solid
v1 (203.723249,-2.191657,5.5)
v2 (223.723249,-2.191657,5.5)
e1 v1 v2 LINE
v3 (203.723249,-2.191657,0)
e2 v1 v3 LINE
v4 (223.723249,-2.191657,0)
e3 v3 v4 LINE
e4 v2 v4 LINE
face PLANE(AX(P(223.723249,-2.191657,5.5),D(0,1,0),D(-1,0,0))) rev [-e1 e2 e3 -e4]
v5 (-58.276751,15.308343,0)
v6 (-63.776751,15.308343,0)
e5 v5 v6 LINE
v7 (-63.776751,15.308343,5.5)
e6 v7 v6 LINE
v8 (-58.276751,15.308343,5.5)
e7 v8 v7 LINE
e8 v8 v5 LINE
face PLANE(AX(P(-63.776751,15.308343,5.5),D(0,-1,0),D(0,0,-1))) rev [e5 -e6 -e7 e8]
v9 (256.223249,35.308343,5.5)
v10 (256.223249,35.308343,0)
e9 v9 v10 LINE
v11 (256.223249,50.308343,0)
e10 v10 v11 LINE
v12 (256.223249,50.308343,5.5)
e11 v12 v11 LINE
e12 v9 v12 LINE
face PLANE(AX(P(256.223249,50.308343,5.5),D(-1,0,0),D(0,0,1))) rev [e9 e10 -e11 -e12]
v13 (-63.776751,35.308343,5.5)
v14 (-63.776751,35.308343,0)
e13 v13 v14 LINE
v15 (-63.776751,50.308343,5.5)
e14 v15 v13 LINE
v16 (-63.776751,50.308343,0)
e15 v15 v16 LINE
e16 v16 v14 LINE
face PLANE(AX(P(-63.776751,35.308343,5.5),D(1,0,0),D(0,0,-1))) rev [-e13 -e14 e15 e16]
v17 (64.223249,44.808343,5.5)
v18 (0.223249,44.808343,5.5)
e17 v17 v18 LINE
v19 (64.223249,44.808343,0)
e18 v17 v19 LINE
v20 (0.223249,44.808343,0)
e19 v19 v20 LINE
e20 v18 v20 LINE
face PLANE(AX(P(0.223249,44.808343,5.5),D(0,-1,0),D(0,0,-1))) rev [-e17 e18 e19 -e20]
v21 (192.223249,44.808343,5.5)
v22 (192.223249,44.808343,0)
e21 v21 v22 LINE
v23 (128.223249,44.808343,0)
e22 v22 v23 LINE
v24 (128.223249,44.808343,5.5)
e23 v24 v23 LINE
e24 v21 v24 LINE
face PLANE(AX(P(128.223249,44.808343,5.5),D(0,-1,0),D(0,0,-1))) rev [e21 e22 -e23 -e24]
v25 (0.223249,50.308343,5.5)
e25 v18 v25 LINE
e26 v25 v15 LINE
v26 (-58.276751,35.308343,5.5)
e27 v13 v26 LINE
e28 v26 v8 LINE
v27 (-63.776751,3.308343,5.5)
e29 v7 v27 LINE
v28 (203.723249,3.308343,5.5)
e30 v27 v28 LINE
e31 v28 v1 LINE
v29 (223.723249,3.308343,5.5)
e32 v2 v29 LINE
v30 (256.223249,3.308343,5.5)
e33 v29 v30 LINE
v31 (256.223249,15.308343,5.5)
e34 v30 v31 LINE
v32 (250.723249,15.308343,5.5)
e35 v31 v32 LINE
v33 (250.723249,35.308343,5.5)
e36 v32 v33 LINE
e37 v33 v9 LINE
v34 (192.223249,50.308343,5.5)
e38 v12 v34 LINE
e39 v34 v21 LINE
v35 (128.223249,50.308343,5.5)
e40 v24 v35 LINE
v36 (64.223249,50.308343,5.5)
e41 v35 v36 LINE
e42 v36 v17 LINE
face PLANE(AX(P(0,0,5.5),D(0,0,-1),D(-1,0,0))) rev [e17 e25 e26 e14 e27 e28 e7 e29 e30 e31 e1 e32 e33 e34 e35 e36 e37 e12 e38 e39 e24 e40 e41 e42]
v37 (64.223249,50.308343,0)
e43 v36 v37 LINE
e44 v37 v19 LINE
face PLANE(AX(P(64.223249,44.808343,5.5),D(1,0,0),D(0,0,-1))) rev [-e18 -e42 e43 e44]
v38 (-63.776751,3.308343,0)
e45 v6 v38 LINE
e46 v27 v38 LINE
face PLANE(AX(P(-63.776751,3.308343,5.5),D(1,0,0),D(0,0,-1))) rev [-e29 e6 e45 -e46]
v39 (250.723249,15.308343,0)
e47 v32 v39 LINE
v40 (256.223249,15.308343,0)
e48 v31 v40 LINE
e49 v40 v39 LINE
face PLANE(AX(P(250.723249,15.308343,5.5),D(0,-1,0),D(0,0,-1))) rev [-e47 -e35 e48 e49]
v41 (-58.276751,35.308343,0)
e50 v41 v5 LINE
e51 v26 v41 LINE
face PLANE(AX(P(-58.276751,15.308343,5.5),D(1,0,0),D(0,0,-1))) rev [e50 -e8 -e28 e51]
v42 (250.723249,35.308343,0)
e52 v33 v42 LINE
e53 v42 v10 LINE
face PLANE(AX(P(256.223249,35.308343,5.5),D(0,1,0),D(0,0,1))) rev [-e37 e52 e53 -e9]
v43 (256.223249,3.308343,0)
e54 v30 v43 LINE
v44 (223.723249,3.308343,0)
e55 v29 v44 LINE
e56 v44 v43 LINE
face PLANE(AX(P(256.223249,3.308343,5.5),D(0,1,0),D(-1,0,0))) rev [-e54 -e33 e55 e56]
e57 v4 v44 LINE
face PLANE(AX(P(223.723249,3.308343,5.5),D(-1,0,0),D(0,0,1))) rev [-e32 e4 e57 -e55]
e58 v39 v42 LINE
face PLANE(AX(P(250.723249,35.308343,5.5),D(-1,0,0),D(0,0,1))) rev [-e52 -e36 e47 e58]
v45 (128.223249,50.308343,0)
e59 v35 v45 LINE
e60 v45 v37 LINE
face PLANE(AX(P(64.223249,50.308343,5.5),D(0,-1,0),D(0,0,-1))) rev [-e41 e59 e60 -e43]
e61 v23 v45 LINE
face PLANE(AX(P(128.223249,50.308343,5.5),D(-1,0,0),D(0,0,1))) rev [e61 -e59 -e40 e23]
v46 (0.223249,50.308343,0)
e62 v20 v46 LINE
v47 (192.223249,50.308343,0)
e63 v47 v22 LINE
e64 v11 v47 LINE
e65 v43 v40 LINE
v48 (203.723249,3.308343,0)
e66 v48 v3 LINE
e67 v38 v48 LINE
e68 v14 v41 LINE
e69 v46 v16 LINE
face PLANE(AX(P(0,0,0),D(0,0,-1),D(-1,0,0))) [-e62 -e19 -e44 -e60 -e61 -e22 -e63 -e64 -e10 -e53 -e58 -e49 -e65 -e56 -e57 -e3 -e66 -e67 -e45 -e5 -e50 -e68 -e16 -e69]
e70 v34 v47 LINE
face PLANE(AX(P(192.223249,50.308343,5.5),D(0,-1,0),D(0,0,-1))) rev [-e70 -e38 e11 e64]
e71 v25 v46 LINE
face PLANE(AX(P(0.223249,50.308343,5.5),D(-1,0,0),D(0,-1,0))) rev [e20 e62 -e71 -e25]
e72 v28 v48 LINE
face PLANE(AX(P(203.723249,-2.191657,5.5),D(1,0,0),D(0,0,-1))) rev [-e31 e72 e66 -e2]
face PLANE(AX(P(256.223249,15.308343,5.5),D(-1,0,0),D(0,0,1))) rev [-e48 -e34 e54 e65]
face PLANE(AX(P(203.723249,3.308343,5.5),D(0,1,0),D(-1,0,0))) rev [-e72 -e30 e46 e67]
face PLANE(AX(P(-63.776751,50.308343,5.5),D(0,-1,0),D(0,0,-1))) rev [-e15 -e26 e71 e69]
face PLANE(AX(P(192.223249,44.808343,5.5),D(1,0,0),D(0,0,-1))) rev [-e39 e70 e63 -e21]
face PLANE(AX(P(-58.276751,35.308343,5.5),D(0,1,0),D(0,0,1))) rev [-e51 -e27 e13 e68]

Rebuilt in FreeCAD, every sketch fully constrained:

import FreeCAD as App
import Part
import Sketcher
from FreeCAD import Vector
Q = App.Units.Quantity

doc = App.newDocument("Part")
body = doc.addObject("PartDesign::Body", "Body")

sketch1 = doc.addObject("Sketcher::SketchObject", "Sketch")
body.addObject(sketch1)
sketch1.AttachmentSupport = (doc.XY_Plane, [""])
sketch1.MapMode = "FlatFace"
sketch1.addGeometry(Part.LineSegment(Vector(-64, 15, 0), Vector(-64, 3, 0)), False)
sketch1.addGeometry(Part.LineSegment(Vector(-64, 3, 0), Vector(204, 3, 0)), False)
sketch1.addGeometry(Part.LineSegment(Vector(204, 3, 0), Vector(204, -2, 0)), False)
sketch1.addGeometry(Part.LineSegment(Vector(204, -2, 0), Vector(224, -2, 0)), False)
sketch1.addGeometry(Part.LineSegment(Vector(224, -2, 0), Vector(224, 3, 0)), False)
sketch1.addGeometry(Part.LineSegment(Vector(224, 3, 0), Vector(256, 3, 0)), False)
sketch1.addGeometry(Part.LineSegment(Vector(256, 3, 0), Vector(256, 15, 0)), False)
sketch1.addGeometry(Part.LineSegment(Vector(256, 15, 0), Vector(251, 15, 0)), False)
sketch1.addGeometry(Part.LineSegment(Vector(251, 15, 0), Vector(251, 35, 0)), False)
sketch1.addGeometry(Part.LineSegment(Vector(251, 35, 0), Vector(256, 35, 0)), False)
sketch1.addGeometry(Part.LineSegment(Vector(256, 35, 0), Vector(256, 50, 0)), False)
sketch1.addGeometry(Part.LineSegment(Vector(256, 50, 0), Vector(192, 50, 0)), False)
sketch1.addGeometry(Part.LineSegment(Vector(192, 50, 0), Vector(192, 45, 0)), False)
sketch1.addGeometry(Part.LineSegment(Vector(192, 45, 0), Vector(128, 45, 0)), False)
sketch1.addGeometry(Part.LineSegment(Vector(128, 45, 0), Vector(128, 50, 0)), False)
sketch1.addGeometry(Part.LineSegment(Vector(128, 50, 0), Vector(64, 50, 0)), False)
sketch1.addGeometry(Part.LineSegment(Vector(64, 50, 0), Vector(64, 45, 0)), False)
sketch1.addGeometry(Part.LineSegment(Vector(64, 45, 0), Vector(0, 45, 0)), False)
sketch1.addGeometry(Part.LineSegment(Vector(0, 45, 0), Vector(0, 50, 0)), False)
sketch1.addGeometry(Part.LineSegment(Vector(0, 50, 0), Vector(-64, 50, 0)), False)
sketch1.addGeometry(Part.LineSegment(Vector(-64, 50, 0), Vector(-64, 35, 0)), False)
sketch1.addGeometry(Part.LineSegment(Vector(-64, 35, 0), Vector(-58, 35, 0)), False)
sketch1.addGeometry(Part.LineSegment(Vector(-58, 35, 0), Vector(-58, 15, 0)), False)
sketch1.addGeometry(Part.LineSegment(Vector(-58, 15, 0), Vector(-64, 15, 0)), False)
sketch1.addConstraint(Sketcher.Constraint("Coincident", 0, 2, 1, 1))
sketch1.addConstraint(Sketcher.Constraint("Coincident", 1, 2, 2, 1))
sketch1.addConstraint(Sketcher.Constraint("Coincident", 2, 2, 3, 1))
sketch1.addConstraint(Sketcher.Constraint("Coincident", 3, 2, 4, 1))
sketch1.addConstraint(Sketcher.Constraint("Coincident", 4, 2, 5, 1))
sketch1.addConstraint(Sketcher.Constraint("Coincident", 5, 2, 6, 1))
sketch1.addConstraint(Sketcher.Constraint("Coincident", 6, 2, 7, 1))
sketch1.addConstraint(Sketcher.Constraint("Coincident", 7, 2, 8, 1))
sketch1.addConstraint(Sketcher.Constraint("Coincident", 8, 2, 9, 1))
sketch1.addConstraint(Sketcher.Constraint("Coincident", 9, 2, 10, 1))
sketch1.addConstraint(Sketcher.Constraint("Coincident", 10, 2, 11, 1))
sketch1.addConstraint(Sketcher.Constraint("Coincident", 11, 2, 12, 1))
sketch1.addConstraint(Sketcher.Constraint("Coincident", 12, 2, 13, 1))
sketch1.addConstraint(Sketcher.Constraint("Coincident", 13, 2, 14, 1))
sketch1.addConstraint(Sketcher.Constraint("Coincident", 14, 2, 15, 1))
sketch1.addConstraint(Sketcher.Constraint("Coincident", 15, 2, 16, 1))
sketch1.addConstraint(Sketcher.Constraint("Coincident", 16, 2, 17, 1))
sketch1.addConstraint(Sketcher.Constraint("Coincident", 17, 2, 18, 1))
sketch1.addConstraint(Sketcher.Constraint("Coincident", 18, 2, 19, 1))
sketch1.addConstraint(Sketcher.Constraint("Coincident", 19, 2, 20, 1))
sketch1.addConstraint(Sketcher.Constraint("Coincident", 20, 2, 21, 1))
sketch1.addConstraint(Sketcher.Constraint("Coincident", 21, 2, 22, 1))
sketch1.addConstraint(Sketcher.Constraint("Coincident", 22, 2, 23, 1))
sketch1.addConstraint(Sketcher.Constraint("Coincident", 23, 2, 0, 1))
sketch1.addConstraint(Sketcher.Constraint("Vertical", 0))
sketch1.addConstraint(Sketcher.Constraint("Horizontal", 1))
sketch1.addConstraint(Sketcher.Constraint("Vertical", 2))
sketch1.addConstraint(Sketcher.Constraint("Horizontal", 3))
sketch1.addConstraint(Sketcher.Constraint("Vertical", 4))
sketch1.addConstraint(Sketcher.Constraint("Horizontal", 5))
sketch1.addConstraint(Sketcher.Constraint("Vertical", 6))
sketch1.addConstraint(Sketcher.Constraint("Horizontal", 7))
sketch1.addConstraint(Sketcher.Constraint("Vertical", 8))
sketch1.addConstraint(Sketcher.Constraint("Horizontal", 9))
sketch1.addConstraint(Sketcher.Constraint("Vertical", 10))
sketch1.addConstraint(Sketcher.Constraint("Horizontal", 11))
sketch1.addConstraint(Sketcher.Constraint("Vertical", 12))
sketch1.addConstraint(Sketcher.Constraint("Horizontal", 13))
sketch1.addConstraint(Sketcher.Constraint("Vertical", 14))
sketch1.addConstraint(Sketcher.Constraint("Horizontal", 15))
sketch1.addConstraint(Sketcher.Constraint("Vertical", 16))
sketch1.addConstraint(Sketcher.Constraint("Horizontal", 17))
sketch1.addConstraint(Sketcher.Constraint("Vertical", 18))
sketch1.addConstraint(Sketcher.Constraint("Horizontal", 19))
sketch1.addConstraint(Sketcher.Constraint("Vertical", 20))
sketch1.addConstraint(Sketcher.Constraint("Horizontal", 21))
sketch1.addConstraint(Sketcher.Constraint("Vertical", 22))
sketch1.addConstraint(Sketcher.Constraint("Horizontal", 23))
sketch1.addConstraint(Sketcher.Constraint("Horizontal", 1, 2, 4, 2))
sketch1.addConstraint(Sketcher.Constraint("Horizontal", 11, 2, 14, 2))
sketch1.addConstraint(Sketcher.Constraint("Horizontal", 13, 2, 16, 2))
sketch1.addConstraint(Sketcher.Constraint("Horizontal", 15, 2, 18, 2))
sketch1.addConstraint(Sketcher.Constraint("Horizontal", 9, 2, 20, 2))
sketch1.addConstraint(Sketcher.Constraint("Horizontal", 7, 2, 22, 2))
sketch1.addConstraint(Sketcher.Constraint("Vertical", 6, 2, 9, 2))
sketch1.addConstraint(Sketcher.Constraint("Vertical", 0, 2, 19, 2))
sketch1.addConstraint(Sketcher.Constraint("Equal", 11, 13))
sketch1.addConstraint(Sketcher.Constraint("Equal", 13, 15))
sketch1.addConstraint(Sketcher.Constraint("Equal", 15, 17))
sketch1.addConstraint(Sketcher.Constraint("Equal", 17, 19))
sketch1.addConstraint(Sketcher.Constraint("Equal", 9, 21))
sketch1.addConstraint(Sketcher.Constraint("Equal", 23, 2))
sketch1.addConstraint(Sketcher.Constraint("Equal", 3, 8))
sketch1.addConstraint(Sketcher.Constraint("Equal", 4, 12))
sketch1.addConstraint(Sketcher.Constraint("DistanceX", 3, 1, 3, 2, Q("20 mm")))
sketch1.addConstraint(Sketcher.Constraint("DistanceX", 11, 2, 11, 1, Q("64 mm")))
sketch1.addConstraint(Sketcher.Constraint("DistanceY", 0, 2, 0, 1, Q("12 mm")))
sketch1.addConstraint(Sketcher.Constraint("DistanceY", 10, 1, 10, 2, Q("15 mm")))
sketch1.addConstraint(Sketcher.Constraint("DistanceX", 1, 1, 1, 2, Q("267.5 mm")))
sketch1.addConstraint(Sketcher.Constraint("DistanceX", 7, 2, 7, 1, Q("5.5 mm")))
sketch1.addConstraint(Sketcher.Constraint("DistanceX", 0, 2, -1, 1, Q("63.776751 mm")))
sketch1.addConstraint(Sketcher.Constraint("DistanceY", -1, 1, 0, 2, Q("3.308343 mm")))
pad1 = doc.addObject("PartDesign::Pad", "Pad")
body.addObject(pad1)
pad1.Profile = sketch1
pad1.Length = 5.5

doc.recompute()
